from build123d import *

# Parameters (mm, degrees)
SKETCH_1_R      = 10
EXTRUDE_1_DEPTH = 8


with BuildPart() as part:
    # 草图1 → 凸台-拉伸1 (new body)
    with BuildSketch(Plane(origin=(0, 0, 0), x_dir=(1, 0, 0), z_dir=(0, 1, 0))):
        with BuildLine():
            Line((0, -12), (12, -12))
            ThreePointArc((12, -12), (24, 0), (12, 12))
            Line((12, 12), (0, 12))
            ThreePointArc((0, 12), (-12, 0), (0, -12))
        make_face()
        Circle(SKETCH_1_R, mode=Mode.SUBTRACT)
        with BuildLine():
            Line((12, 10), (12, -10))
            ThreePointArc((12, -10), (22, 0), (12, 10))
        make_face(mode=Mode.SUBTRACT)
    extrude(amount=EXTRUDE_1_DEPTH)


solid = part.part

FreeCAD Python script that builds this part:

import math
import FreeCAD as App
import Part
import Sketcher
Q = App.Units.Quantity

doc = App.newDocument("Part")
body = doc.addObject("PartDesign::Body", "Body")

# Sketch on XZ plane
sketch1 = body.newObject("Sketcher::SketchObject", "Sketch")
sketch1.AttachmentSupport = (doc.getObject("XZ_Plane"), [""])
sketch1.MapMode = "FlatFace"
sketch1.addGeometry(Part.LineSegment(App.Vector(0, 12, 0), App.Vector(12, 12, 0)), False)
sketch1.addGeometry(Part.ArcOfCircle(Part.Circle(App.Vector(12, 0, 0), App.Vector(0, 0, 1), 12), math.radians(-90), math.radians(90)), False)
sketch1.addGeometry(Part.LineSegment(App.Vector(12, -12, 0), App.Vector(0, -12, 0)), False)
sketch1.addGeometry(Part.ArcOfCircle(Part.Circle(App.Vector(0, 0, 0), App.Vector(0, 0, 1), 12), math.radians(90), math.radians(270)), False)
sketch1.addGeometry(Part.Circle(App.Vector(0, 0, 0), App.Vector(0, 0, 1), 10), False)
sketch1.addGeometry(Part.LineSegment(App.Vector(12, 10, 0), App.Vector(12, -10, 0)), False)
sketch1.addGeometry(Part.ArcOfCircle(Part.Circle(App.Vector(12, 0, 0), App.Vector(0, 0, 1), 10), math.radians(-90), math.radians(90)), False)
sketch1.addConstraint(Sketcher.Constraint("Tangent", 0, 2, 1, 2))
sketch1.addConstraint(Sketcher.Constraint("Tangent", 1, 1, 2, 1))
sketch1.addConstraint(Sketcher.Constraint("Tangent", 2, 2, 3, 2))
sketch1.addConstraint(Sketcher.Constraint("Tangent", 3, 1, 0, 1))
sketch1.addConstraint(Sketcher.Constraint("Coincident", 5, 1, 6, 2))
sketch1.addConstraint(Sketcher.Constraint("Coincident", 6, 1, 5, 2))
sketch1.addConstraint(Sketcher.Constraint("Horizontal", 0))
sketch1.addConstraint(Sketcher.Constraint("Horizontal", 2))
sketch1.addConstraint(Sketcher.Constraint("Vertical", 5))
sketch1.addConstraint(Sketcher.Constraint("Coincident", 3, 3, -1, 1))
sketch1.addConstraint(Sketcher.Constraint("Coincident", 4, 3, -1, 1))
sketch1.addConstraint(Sketcher.Constraint("Coincident", 6, 3, 1, 3))
sketch1.addConstraint(Sketcher.Constraint("Equal", 4, 6))
sketch1.addConstraint(Sketcher.Constraint("Vertical", 1, 1, 5, 1))
sketch1.addConstraint(Sketcher.Constraint("Diameter", 4, Q("20 mm")))
sketch1.addConstraint(Sketcher.Constraint("Radius", 1, Q("12 mm")))
sketch1.addConstraint(Sketcher.Constraint("DistanceX", 0, 1, 0, 2, Q("12 mm")))
pad1 = body.newObject("PartDesign::Pad", "Pad")
pad1.Profile = sketch1
pad1.Length = 8
pad1.Reversed = True

doc.recompute()
